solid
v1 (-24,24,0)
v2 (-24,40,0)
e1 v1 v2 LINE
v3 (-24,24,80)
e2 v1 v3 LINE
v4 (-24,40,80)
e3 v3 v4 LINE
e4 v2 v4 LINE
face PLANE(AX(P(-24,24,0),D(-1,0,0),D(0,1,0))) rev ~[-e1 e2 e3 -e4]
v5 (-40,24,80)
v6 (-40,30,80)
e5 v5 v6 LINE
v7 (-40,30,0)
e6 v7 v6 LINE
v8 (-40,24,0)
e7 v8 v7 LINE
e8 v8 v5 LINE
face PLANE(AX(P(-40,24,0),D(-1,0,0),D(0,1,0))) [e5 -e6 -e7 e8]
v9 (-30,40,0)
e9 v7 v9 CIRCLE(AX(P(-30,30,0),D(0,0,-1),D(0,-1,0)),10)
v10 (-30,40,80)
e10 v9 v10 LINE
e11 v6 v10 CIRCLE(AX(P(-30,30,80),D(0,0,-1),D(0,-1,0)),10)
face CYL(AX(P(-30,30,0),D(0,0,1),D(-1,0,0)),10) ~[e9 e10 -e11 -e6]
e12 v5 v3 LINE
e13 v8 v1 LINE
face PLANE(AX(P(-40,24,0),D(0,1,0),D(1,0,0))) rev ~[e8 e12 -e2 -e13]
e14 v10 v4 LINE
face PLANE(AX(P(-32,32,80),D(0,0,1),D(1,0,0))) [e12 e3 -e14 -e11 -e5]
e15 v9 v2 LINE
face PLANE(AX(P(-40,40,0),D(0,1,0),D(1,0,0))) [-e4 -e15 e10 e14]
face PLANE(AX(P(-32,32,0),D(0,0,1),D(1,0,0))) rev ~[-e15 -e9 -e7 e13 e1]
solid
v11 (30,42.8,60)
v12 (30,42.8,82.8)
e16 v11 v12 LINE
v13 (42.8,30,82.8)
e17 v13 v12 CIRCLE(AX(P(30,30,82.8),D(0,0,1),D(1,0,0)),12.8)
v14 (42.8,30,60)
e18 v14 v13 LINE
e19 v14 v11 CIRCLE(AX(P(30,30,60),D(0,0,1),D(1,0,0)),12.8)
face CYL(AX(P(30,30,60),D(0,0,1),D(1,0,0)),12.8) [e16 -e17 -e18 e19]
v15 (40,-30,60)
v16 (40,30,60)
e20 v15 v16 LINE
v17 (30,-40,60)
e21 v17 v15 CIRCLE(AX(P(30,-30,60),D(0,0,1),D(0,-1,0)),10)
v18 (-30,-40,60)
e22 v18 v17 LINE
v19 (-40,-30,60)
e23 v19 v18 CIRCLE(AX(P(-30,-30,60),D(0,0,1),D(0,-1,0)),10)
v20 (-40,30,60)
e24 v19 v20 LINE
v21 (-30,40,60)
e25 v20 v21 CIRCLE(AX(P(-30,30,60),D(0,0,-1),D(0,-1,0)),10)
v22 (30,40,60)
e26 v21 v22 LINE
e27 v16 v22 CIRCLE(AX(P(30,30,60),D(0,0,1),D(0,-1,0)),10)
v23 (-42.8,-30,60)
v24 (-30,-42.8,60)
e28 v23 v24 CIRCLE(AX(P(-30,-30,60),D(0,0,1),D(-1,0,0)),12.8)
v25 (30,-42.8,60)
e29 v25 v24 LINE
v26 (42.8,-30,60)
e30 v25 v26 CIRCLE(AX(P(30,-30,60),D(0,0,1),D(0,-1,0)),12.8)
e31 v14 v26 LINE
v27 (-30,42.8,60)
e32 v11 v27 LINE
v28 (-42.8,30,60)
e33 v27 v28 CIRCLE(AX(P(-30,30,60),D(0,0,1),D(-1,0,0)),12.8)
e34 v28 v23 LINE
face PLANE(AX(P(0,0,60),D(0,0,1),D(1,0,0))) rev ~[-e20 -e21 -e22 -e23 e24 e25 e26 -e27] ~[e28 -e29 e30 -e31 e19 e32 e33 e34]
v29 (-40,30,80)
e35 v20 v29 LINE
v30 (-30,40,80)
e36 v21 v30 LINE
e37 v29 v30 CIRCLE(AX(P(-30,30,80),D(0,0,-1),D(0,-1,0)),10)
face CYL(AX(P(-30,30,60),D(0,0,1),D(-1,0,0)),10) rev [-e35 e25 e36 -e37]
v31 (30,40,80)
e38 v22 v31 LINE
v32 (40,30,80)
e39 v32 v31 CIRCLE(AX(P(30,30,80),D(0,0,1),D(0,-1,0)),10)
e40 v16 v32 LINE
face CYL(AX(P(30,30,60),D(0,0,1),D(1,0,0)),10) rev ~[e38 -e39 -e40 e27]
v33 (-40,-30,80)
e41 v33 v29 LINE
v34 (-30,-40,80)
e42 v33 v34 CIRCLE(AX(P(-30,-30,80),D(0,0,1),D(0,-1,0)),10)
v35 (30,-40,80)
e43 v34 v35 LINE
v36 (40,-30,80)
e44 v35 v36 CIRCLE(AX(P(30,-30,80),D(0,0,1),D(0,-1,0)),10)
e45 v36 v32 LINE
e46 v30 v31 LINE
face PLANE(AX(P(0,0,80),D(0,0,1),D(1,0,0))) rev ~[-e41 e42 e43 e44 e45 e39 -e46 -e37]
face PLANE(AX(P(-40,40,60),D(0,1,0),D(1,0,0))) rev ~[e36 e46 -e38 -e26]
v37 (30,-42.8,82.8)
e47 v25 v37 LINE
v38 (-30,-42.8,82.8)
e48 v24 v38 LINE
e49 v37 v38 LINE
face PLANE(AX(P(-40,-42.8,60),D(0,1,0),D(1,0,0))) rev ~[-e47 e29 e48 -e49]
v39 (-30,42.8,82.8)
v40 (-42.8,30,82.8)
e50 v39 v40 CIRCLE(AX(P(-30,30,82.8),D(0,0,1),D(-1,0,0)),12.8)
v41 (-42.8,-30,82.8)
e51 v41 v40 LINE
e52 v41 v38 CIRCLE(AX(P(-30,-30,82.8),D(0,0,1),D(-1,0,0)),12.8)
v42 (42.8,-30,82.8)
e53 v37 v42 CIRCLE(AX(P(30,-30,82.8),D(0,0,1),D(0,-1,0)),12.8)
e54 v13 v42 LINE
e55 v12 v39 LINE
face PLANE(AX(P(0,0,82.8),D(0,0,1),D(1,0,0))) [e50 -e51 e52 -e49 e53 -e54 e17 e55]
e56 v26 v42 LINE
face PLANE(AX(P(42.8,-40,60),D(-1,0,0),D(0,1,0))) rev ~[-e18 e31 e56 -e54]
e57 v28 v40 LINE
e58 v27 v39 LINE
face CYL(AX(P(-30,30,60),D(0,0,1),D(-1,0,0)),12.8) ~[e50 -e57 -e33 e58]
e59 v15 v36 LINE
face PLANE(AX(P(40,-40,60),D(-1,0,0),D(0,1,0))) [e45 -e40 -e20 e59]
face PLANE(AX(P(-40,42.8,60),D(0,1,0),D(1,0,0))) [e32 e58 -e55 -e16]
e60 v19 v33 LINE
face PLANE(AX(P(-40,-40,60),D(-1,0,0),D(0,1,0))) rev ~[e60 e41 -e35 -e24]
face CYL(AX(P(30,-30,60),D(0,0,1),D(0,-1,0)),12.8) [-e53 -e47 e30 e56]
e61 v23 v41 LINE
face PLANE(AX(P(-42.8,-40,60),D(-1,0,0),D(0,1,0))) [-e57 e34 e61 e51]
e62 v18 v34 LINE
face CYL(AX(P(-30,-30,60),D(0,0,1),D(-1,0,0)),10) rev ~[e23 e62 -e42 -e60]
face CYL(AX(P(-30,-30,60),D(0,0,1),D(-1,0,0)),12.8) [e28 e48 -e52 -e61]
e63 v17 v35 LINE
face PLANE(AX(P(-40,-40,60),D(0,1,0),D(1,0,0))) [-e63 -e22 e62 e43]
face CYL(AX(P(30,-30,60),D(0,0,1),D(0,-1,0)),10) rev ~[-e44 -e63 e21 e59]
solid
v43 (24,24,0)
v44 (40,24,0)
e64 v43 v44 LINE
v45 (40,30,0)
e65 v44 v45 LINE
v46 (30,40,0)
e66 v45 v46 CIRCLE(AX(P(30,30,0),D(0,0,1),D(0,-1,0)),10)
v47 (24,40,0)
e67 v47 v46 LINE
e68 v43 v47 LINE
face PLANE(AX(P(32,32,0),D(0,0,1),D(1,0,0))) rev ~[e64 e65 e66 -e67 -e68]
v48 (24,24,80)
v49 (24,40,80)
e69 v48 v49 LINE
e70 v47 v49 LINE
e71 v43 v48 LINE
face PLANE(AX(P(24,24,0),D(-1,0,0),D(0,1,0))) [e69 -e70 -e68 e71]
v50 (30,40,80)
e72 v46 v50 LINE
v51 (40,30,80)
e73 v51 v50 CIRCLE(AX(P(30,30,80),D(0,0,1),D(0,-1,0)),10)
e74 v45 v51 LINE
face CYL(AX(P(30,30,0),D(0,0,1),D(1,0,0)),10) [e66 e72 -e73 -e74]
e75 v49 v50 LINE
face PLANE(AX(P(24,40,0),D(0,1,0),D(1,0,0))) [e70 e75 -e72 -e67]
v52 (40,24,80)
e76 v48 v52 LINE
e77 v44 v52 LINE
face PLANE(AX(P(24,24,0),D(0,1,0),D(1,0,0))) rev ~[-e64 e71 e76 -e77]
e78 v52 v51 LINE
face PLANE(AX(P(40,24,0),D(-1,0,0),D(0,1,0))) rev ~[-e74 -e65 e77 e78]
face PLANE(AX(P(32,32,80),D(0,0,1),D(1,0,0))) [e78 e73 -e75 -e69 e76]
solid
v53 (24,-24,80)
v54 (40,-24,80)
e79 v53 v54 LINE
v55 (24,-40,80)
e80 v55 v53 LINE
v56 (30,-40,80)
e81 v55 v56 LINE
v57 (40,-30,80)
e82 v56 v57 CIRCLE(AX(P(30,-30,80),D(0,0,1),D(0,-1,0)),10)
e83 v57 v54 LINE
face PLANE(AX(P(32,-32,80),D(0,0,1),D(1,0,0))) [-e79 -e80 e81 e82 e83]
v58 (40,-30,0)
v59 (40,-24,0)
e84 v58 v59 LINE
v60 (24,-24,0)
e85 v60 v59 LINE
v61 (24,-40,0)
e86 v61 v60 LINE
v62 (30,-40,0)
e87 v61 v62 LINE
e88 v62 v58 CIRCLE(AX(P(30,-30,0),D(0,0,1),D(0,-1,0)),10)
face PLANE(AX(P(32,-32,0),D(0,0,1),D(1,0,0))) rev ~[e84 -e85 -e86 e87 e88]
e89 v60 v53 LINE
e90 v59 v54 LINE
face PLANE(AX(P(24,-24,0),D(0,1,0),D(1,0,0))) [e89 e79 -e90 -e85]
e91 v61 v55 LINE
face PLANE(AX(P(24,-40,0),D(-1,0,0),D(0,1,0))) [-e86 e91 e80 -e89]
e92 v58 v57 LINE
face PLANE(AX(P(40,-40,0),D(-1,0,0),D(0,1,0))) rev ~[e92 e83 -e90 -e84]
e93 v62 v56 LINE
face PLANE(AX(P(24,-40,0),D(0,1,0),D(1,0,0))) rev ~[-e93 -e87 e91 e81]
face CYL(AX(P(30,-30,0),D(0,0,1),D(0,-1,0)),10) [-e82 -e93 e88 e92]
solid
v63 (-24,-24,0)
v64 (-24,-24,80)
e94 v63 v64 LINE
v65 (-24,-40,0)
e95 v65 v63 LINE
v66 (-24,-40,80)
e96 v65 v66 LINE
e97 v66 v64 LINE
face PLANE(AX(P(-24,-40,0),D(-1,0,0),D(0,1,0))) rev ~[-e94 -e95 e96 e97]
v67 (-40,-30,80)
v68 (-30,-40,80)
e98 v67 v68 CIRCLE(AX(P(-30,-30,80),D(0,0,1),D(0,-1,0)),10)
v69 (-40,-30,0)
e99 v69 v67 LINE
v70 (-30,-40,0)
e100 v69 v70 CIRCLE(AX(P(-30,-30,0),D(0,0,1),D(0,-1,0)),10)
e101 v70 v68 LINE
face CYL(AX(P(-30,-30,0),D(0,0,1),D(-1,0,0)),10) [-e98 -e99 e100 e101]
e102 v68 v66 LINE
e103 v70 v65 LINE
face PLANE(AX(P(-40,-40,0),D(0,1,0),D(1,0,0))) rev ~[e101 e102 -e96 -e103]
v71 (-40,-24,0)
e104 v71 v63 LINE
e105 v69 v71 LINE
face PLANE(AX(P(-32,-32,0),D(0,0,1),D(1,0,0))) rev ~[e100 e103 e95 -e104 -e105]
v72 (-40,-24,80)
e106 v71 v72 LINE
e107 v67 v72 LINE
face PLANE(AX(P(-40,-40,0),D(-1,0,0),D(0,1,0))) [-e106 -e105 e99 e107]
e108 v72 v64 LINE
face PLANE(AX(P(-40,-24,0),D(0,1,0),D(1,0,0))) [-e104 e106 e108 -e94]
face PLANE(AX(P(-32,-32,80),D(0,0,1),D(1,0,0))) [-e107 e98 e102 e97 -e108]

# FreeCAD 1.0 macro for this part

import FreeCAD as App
import Part
import Sketcher
Q = App.Units.Quantity


def edges_at(feature, points):
    """Names of the edges that pass closest to the given points."""
    edges = feature.Shape.Edges
    near = lambda p: min(range(len(edges)), key=lambda i: edges[i].distToShape(Part.Vertex(*p))[0])
    return sorted({f"Edge{near(p) + 1}" for p in points})


def faces_at(feature, points):
    """Names of the faces that lie closest to the given points."""
    faces = feature.Shape.Faces
    near = lambda p: min(range(len(faces)), key=lambda i: faces[i].distToShape(Part.Vertex(*p))[0])
    return sorted({f"Face{near(p) + 1}" for p in points})


def add_polygon(sketch, points):
    """Adds a closed chain of lines whose ends are joined by coincident constraints."""
    first, n = sketch.GeometryCount, len(points)
    for a, b in zip(points, points[1:] + points[:1]):
        sketch.addGeometry(Part.LineSegment(App.Vector(*a, 0), App.Vector(*b, 0)), False)
    for i in range(n):
        sketch.addConstraint(Sketcher.Constraint("Coincident", first + i, 2, first + (i + 1) % n, 1))

doc = App.newDocument("Part")
body = doc.addObject("PartDesign::Body", "Body")

sketch1 = body.newObject("Sketcher::SketchObject", "Sketch")
sketch1.AttachmentSupport = (doc.getObject("XY_Plane"), [""])
sketch1.MapMode = "FlatFace"
add_polygon(sketch1, [(-40, 40), (-40, 24), (-24, 24), (-24, 40)])
sketch1.addConstraint(Sketcher.Constraint("Vertical", 0))
sketch1.addConstraint(Sketcher.Constraint("Horizontal", 1))
sketch1.addConstraint(Sketcher.Constraint("Vertical", 2))
sketch1.addConstraint(Sketcher.Constraint("Horizontal", 3))
sketch1.addConstraint(Sketcher.Constraint("Equal", 3, 0))
sketch1.addConstraint(Sketcher.Constraint("DistanceX", 1, 1, 1, 2, Q("16 mm")))
sketch1.addConstraint(Sketcher.Constraint("DistanceX", 0, 2, -1, 1, Q("40 mm")))
sketch1.addConstraint(Sketcher.Constraint("DistanceY", -1, 1, 0, 2, Q("24 mm")))
pad1 = body.newObject("PartDesign::Pad", "Pad")
pad1.Profile = sketch1
pad1.Length = 80
doc.recompute()

fillet = body.newObject("PartDesign::Fillet", "Fillet")
fillet.Base = (pad1, edges_at(pad1, [(-40, 40, 40)]))
fillet.Radius = 10
body2 = doc.addObject("PartDesign::Body", "Body001")

sketch2 = body2.newObject("Sketcher::SketchObject", "Sketch001")
sketch2.AttachmentSupport = (doc.getObject("XY_Plane001"), [""])
sketch2.MapMode = "FlatFace"
add_polygon(sketch2, [(24, 40), (24, 24), (40, 24), (40, 40)])
sketch2.addConstraint(Sketcher.Constraint("Vertical", 0))
sketch2.addConstraint(Sketcher.Constraint("Horizontal", 1))
sketch2.addConstraint(Sketcher.Constraint("Vertical", 2))
sketch2.addConstraint(Sketcher.Constraint("Horizontal", 3))
sketch2.addConstraint(Sketcher.Constraint("Equal", 3, 0))
sketch2.addConstraint(Sketcher.Constraint("DistanceX", 1, 1, 1, 2, Q("16 mm")))
sketch2.addConstraint(Sketcher.Constraint("DistanceX", -1, 1, 0, 2, Q("24 mm")))
sketch2.addConstraint(Sketcher.Constraint("DistanceY", -1, 1, 0, 2, Q("24 mm")))
pad2 = body2.newObject("PartDesign::Pad", "Pad001")
pad2.Profile = sketch2
pad2.Length = 80
doc.recompute()

fillet2 = body2.newObject("PartDesign::Fillet", "Fillet001")
fillet2.Base = (pad2, edges_at(pad2, [(40, 40, 40)]))
fillet2.Radius = 10
body3 = doc.addObject("PartDesign::Body", "Body002")

sketch3 = body3.newObject("Sketcher::SketchObject", "Sketch002")
sketch3.AttachmentSupport = (doc.getObject("XY_Plane002"), [""])
sketch3.MapMode = "FlatFace"
add_polygon(sketch3, [(24, -24), (24, -40), (40, -40), (40, -24)])
sketch3.addConstraint(Sketcher.Constraint("Vertical", 0))
sketch3.addConstraint(Sketcher.Constraint("Horizontal", 1))
sketch3.addConstraint(Sketcher.Constraint("Vertical", 2))
sketch3.addConstraint(Sketcher.Constraint("Horizontal", 3))
sketch3.addConstraint(Sketcher.Constraint("Equal", 3, 0))
sketch3.addConstraint(Sketcher.Constraint("DistanceX", 1, 1, 1, 2, Q("16 mm")))
sketch3.addConstraint(Sketcher.Constraint("DistanceX", -1, 1, 0, 2, Q("24 mm")))
sketch3.addConstraint(Sketcher.Constraint("DistanceY", 0, 2, -1, 1, Q("40 mm")))
pad3 = body3.newObject("PartDesign::Pad", "Pad002")
pad3.Profile = sketch3
pad3.Length = 80
doc.recompute()

fillet3 = body3.newObject("PartDesign::Fillet", "Fillet002")
fillet3.Base = (pad3, edges_at(pad3, [(40, -40, 40)]))
fillet3.Radius = 10
body4 = doc.addObject("PartDesign::Body", "Body003")

sketch4 = body4.newObject("Sketcher::SketchObject", "Sketch003")
sketch4.AttachmentSupport = (doc.getObject("XY_Plane003"), [""])
sketch4.MapMode = "FlatFace"
add_polygon(sketch4, [(-40, -24), (-40, -40), (-24, -40), (-24, -24)])
sketch4.addConstraint(Sketcher.Constraint("Vertical", 0))
sketch4.addConstraint(Sketcher.Constraint("Horizontal", 1))
sketch4.addConstraint(Sketcher.Constraint("Vertical", 2))
sketch4.addConstraint(Sketcher.Constraint("Horizontal", 3))
sketch4.addConstraint(Sketcher.Constraint("Equal", 3, 0))
sketch4.addConstraint(Sketcher.Constraint("DistanceX", 1, 1, 1, 2, Q("16 mm")))
sketch4.addConstraint(Sketcher.Constraint("DistanceX", 0, 2, -1, 1, Q("40 mm")))
sketch4.addConstraint(Sketcher.Constraint("DistanceY", 0, 2, -1, 1, Q("40 mm")))
pad4 = body4.newObject("PartDesign::Pad", "Pad003")
pad4.Profile = sketch4
pad4.Length = 80
doc.recompute()

fillet4 = body4.newObject("PartDesign::Fillet", "Fillet003")
fillet4.Base = (pad4, edges_at(pad4, [(-40, -40, 40)]))
fillet4.Radius = 10
body5 = doc.addObject("PartDesign::Body", "Body004")

sketch5 = body5.newObject("Sketcher::SketchObject", "Sketch004")
sketch5.AttachmentSupport = (doc.getObject("XY_Plane004"), [""])
sketch5.MapMode = "FlatFace"
sketch5.AttachmentOffset = App.Placement(App.Vector(0, 0, 60), App.Rotation())
add_polygon(sketch5, [(-40, 40), (-40, -40), (40, -40), (40, 40)])
sketch5.addConstraint(Sketcher.Constraint("Vertical", 0))
sketch5.addConstraint(Sketcher.Constraint("Horizontal", 1))
sketch5.addConstraint(Sketcher.Constraint("Vertical", 2))
sketch5.addConstraint(Sketcher.Constraint("Horizontal", 3))
sketch5.addConstraint(Sketcher.Constraint("Symmetric", 0, 2, 2, 2, -1, 1))
sketch5.addConstraint(Sketcher.Constraint("Equal", 3, 0))
sketch5.addConstraint(Sketcher.Constraint("DistanceX", 1, 1, 1, 2, Q("80 mm")))
pad5 = body5.newObject("PartDesign::Pad", "Pad004")
pad5.Profile = sketch5
pad5.Length = 20
doc.recompute()

fillet5 = body5.newObject("PartDesign::Fillet", "Fillet004")
fillet5.Base = (pad5, edges_at(pad5, [
    (-40, -40, 70),
    (40, -40, 70),
    (40, 40, 70),
    (-40, 40, 70),
]))
fillet5.Radius = 10
doc.recompute()

thickness = body5.newObject("PartDesign::Thickness", "Thickness")
thickness.Base = (fillet5, faces_at(fillet5, [(0, 0, 60)]))
thickness.Value = 2.8
thickness.Reversed = False
thickness.Join = "Intersection"

doc.recompute()
